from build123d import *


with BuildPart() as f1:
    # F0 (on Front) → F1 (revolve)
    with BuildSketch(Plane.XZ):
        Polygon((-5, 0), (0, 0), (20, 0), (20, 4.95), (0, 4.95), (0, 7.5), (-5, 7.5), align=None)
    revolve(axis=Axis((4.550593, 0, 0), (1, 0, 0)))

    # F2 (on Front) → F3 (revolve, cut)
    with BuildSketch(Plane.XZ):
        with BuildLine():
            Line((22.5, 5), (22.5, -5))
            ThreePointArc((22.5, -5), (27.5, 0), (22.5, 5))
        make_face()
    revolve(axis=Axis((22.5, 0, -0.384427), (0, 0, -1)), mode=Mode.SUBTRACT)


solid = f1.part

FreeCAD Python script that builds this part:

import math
import FreeCAD as App
import Part
import Sketcher

V = App.Vector
Q = App.Units.Quantity


def add_polygon(sketch, points):
    """Adds a closed chain of lines whose ends are joined by coincident constraints."""
    first, n = sketch.GeometryCount, len(points)
    for a, b in zip(points, points[1:] + points[:1]):
        sketch.addGeometry(Part.LineSegment(App.Vector(*a, 0), App.Vector(*b, 0)), False)
    for i in range(n):
        sketch.addConstraint(Sketcher.Constraint("Coincident", first + i, 2, first + (i + 1) % n, 1))

doc = App.newDocument("Part")
body = doc.addObject("PartDesign::Body", "Body")

# Sketch on XZ plane
sketch1 = doc.addObject("Sketcher::SketchObject", "Sketch")
body.addObject(sketch1)
sketch1.AttachmentSupport = (doc.XZ_Plane, [""])
sketch1.MapMode = "FlatFace"
add_polygon(sketch1, [(-5, 0), (20, 0), (20, 5), (0, 5), (0, 7.5), (-5, 7.5)])  # lines 0-5
sketch1.addConstraint([
    Sketcher.Constraint("Horizontal", 0),
    Sketcher.Constraint("Vertical", 1),
    Sketcher.Constraint("Horizontal", 2),
    Sketcher.Constraint("Vertical", 3),
    Sketcher.Constraint("Horizontal", 4),
    Sketcher.Constraint("Vertical", 5),
    Sketcher.Constraint("PointOnObject", 0, 2, -1),
    Sketcher.Constraint("PointOnObject", 2, 2, -2),
    Sketcher.Constraint("DistanceX", 0, 1, 0, 2, Q("25 mm")),
    Sketcher.Constraint("DistanceX", 2, 2, 2, 1, Q("20 mm")),
    Sketcher.Constraint("DistanceY", 5, 2, 5, 1, Q("7.5 mm")),
    Sketcher.Constraint("DistanceY", 1, 1, 1, 2, Q("4.95 mm")),
])
revolution = doc.addObject("PartDesign::Revolution", "Revolution")
body.addObject(revolution)
revolution.Profile = sketch1
revolution.ReferenceAxis = (sketch1, ["H_Axis"])
revolution.Angle = 360

# Sketch on XZ plane
sketch2 = doc.addObject("Sketcher::SketchObject", "Sketch001")
body.addObject(sketch2)
sketch2.AttachmentSupport = (doc.XZ_Plane, [""])
sketch2.MapMode = "FlatFace"
sketch2.addGeometry([
    Part.LineSegment(V(22, 5, 0), V(22, -5, 0)),
    Part.ArcOfCircle(Part.Circle(V(22, 0, 0), V(0, 0, 1), 5), math.radians(-90), math.radians(90)),
], False)
sketch2.addGeometry(Part.LineSegment(V(22, 5, 0), V(22, -5, 0)), True)  # axis
sketch2.addConstraint([
    Sketcher.Constraint("Coincident", 0, 1, 1, 2),
    Sketcher.Constraint("Coincident", 1, 1, 0, 2),
    Sketcher.Constraint("Vertical", 0),
    Sketcher.Constraint("Vertical", 2),
    Sketcher.Constraint("Coincident", 2, 1, 0, 1),
    Sketcher.Constraint("PointOnObject", 1, 3, -1),
    Sketcher.Constraint("Vertical", 1, 3, 0, 1),
    Sketcher.Constraint("Equal", 0, 2),
    Sketcher.Constraint("Radius", 1, Q("5 mm")),
    Sketcher.Constraint("DistanceX", -1, 1, 1, 3, Q("22.5 mm")),
])
groove = doc.addObject("PartDesign::Groove", "Groove")
body.addObject(groove)
groove.Profile = sketch2
groove.ReferenceAxis = (sketch2, ["Axis0"])
groove.Angle = 360

doc.recompute()
